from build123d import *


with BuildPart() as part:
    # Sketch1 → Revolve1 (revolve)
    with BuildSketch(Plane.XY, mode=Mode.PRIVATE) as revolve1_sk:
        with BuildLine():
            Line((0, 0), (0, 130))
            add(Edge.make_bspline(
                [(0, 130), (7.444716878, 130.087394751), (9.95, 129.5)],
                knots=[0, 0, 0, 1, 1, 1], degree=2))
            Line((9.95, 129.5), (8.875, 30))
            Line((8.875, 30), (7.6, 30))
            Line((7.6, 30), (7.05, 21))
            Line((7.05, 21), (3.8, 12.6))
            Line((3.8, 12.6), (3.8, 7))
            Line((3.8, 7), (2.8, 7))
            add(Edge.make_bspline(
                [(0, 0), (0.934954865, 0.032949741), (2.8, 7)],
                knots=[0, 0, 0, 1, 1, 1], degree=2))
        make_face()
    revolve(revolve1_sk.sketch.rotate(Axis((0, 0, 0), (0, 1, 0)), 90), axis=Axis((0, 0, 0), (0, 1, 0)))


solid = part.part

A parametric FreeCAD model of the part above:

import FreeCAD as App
import Part
import Sketcher
Q = App.Units.Quantity

doc = App.newDocument("Part")
body = doc.addObject("PartDesign::Body", "Body")

# Sketch on XY plane
sketch1 = body.newObject("Sketcher::SketchObject", "Sketch")
sketch1.AttachmentSupport = (doc.getObject("XY_Plane"), [""])
sketch1.MapMode = "FlatFace"
sketch1.addGeometry(Part.LineSegment(App.Vector(0, 130, 0), App.Vector(0, 0, 0)), False)
sketch1.addGeometry(Part.BSplineCurve([App.Vector(0, 0, 0), App.Vector(0.934955, 0.03295, 0), App.Vector(2.8, 7, 0)], [3, 3], [0, 1], False, 2, [1, 1, 1], False), False)
sketch1.addGeometry(Part.LineSegment(App.Vector(2.8, 7, 0), App.Vector(3.8, 7, 0)), False)
sketch1.addGeometry(Part.LineSegment(App.Vector(3.8, 7, 0), App.Vector(3.8, 12.6, 0)), False)
sketch1.addGeometry(Part.LineSegment(App.Vector(3.8, 12.6, 0), App.Vector(7.05, 21, 0)), False)
sketch1.addGeometry(Part.LineSegment(App.Vector(7.05, 21, 0), App.Vector(7.6, 30, 0)), False)
sketch1.addGeometry(Part.LineSegment(App.Vector(7.6, 30, 0), App.Vector(8.875, 30, 0)), False)
sketch1.addGeometry(Part.LineSegment(App.Vector(8.875, 30, 0), App.Vector(9.95, 129.5, 0)), False)
sketch1.addGeometry(Part.BSplineCurve([App.Vector(0, 130, 0), App.Vector(7.444717, 130.087395, 0), App.Vector(9.95, 129.5, 0)], [3, 3], [0, 1], False, 2, [1, 1, 1], False), False)
sketch1.addConstraint(Sketcher.Constraint("Block", 1))
sketch1.addConstraint(Sketcher.Constraint("Block", 8))
sketch1.addConstraint(Sketcher.Constraint("Coincident", 0, 2, 1, 1))
sketch1.addConstraint(Sketcher.Constraint("Coincident", 1, 2, 2, 1))
sketch1.addConstraint(Sketcher.Constraint("Coincident", 2, 2, 3, 1))
sketch1.addConstraint(Sketcher.Constraint("Coincident", 3, 2, 4, 1))
sketch1.addConstraint(Sketcher.Constraint("Coincident", 4, 2, 5, 1))
sketch1.addConstraint(Sketcher.Constraint("Coincident", 5, 2, 6, 1))
sketch1.addConstraint(Sketcher.Constraint("Coincident", 6, 2, 7, 1))
sketch1.addConstraint(Sketcher.Constraint("Coincident", 7, 2, 8, 2))
sketch1.addConstraint(Sketcher.Constraint("Coincident", 8, 1, 0, 1))
sketch1.addConstraint(Sketcher.Constraint("Horizontal", 2))
sketch1.addConstraint(Sketcher.Constraint("Vertical", 3))
sketch1.addConstraint(Sketcher.Constraint("Horizontal", 6))
sketch1.addConstraint(Sketcher.Constraint("DistanceX", 2, 1, 2, 2, Q("1 mm")))
sketch1.addConstraint(Sketcher.Constraint("DistanceY", 3, 1, 3, 2, Q("5.6 mm")))
sketch1.addConstraint(Sketcher.Constraint("DistanceY", -1, 1, 4, 2, Q("21 mm")))
sketch1.addConstraint(Sketcher.Constraint("DistanceY", -1, 1, 5, 2, Q("30 mm")))
sketch1.addConstraint(Sketcher.Constraint("DistanceX", -1, 1, 5, 2, Q("7.6 mm")))
sketch1.addConstraint(Sketcher.Constraint("DistanceX", 4, 2, 7, 2, Q("2.9 mm")))
sketch1.addConstraint(Sketcher.Constraint("DistanceX", 6, 1, 6, 2, Q("1.275 mm")))
revolution = body.newObject("PartDesign::Revolution", "Revolution")
revolution.Profile = sketch1
revolution.ReferenceAxis = (sketch1, ["V_Axis"])
revolution.Angle = 360

doc.recompute()
